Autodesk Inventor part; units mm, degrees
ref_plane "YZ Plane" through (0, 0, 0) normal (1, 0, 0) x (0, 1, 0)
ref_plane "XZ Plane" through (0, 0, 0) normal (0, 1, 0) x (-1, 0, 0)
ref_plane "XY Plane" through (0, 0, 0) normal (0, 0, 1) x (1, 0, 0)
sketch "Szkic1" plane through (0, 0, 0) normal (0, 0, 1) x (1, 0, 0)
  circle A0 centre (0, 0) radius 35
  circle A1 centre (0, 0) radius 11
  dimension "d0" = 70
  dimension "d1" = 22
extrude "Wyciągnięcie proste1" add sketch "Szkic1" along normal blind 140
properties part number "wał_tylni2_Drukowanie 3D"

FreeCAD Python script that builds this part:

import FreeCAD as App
import Part
import Sketcher
Q = App.Units.Quantity

doc = App.newDocument("Part")
body = doc.addObject("PartDesign::Body", "Body")

sketch1 = doc.addObject("Sketcher::SketchObject", "Sketch")
body.addObject(sketch1)
sketch1.AttachmentSupport = (doc.XY_Plane, [""])
sketch1.MapMode = "FlatFace"
sketch1.addGeometry([
    Part.Circle(App.Vector(0, 0, 0), App.Vector(0, 0, 1), 35),
    Part.Circle(App.Vector(0, 0, 0), App.Vector(0, 0, 1), 11),
], False)
sketch1.addConstraint([
    Sketcher.Constraint("Coincident", 0, 3, -1, 1),
    Sketcher.Constraint("Coincident", 1, 3, -1, 1),
    Sketcher.Constraint("Diameter", 0, Q("70 mm")),
    Sketcher.Constraint("Diameter", 1, Q("22 mm")),
])
pad1 = doc.addObject("PartDesign::Pad", "Pad")
body.addObject(pad1)
pad1.Profile = sketch1
pad1.Length = 140

doc.recompute()
